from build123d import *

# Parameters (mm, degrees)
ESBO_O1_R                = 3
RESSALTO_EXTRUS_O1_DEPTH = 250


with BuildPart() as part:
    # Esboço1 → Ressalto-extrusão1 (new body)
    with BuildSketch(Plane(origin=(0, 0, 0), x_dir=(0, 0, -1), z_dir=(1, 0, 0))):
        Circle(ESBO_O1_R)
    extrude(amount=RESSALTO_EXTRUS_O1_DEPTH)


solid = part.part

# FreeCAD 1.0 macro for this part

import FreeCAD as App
import Part
import Sketcher
Q = App.Units.Quantity

doc = App.newDocument("Part")
body = doc.addObject("PartDesign::Body", "Body")

sketch1 = body.newObject("Sketcher::SketchObject", "Sketch")
sketch1.AttachmentSupport = (doc.getObject("YZ_Plane"), [""])
sketch1.MapMode = "FlatFace"
sketch1.addGeometry(Part.Circle(App.Vector(0, 0, 0), App.Vector(0, 0, 1), 3), False)
sketch1.addConstraint(Sketcher.Constraint("Coincident", 0, 3, -1, 1))
sketch1.addConstraint(Sketcher.Constraint("Diameter", 0, Q("6 mm")))
pad1 = body.newObject("PartDesign::Pad", "Pad")
pad1.Profile = sketch1
pad1.Length = 250

doc.recompute()
